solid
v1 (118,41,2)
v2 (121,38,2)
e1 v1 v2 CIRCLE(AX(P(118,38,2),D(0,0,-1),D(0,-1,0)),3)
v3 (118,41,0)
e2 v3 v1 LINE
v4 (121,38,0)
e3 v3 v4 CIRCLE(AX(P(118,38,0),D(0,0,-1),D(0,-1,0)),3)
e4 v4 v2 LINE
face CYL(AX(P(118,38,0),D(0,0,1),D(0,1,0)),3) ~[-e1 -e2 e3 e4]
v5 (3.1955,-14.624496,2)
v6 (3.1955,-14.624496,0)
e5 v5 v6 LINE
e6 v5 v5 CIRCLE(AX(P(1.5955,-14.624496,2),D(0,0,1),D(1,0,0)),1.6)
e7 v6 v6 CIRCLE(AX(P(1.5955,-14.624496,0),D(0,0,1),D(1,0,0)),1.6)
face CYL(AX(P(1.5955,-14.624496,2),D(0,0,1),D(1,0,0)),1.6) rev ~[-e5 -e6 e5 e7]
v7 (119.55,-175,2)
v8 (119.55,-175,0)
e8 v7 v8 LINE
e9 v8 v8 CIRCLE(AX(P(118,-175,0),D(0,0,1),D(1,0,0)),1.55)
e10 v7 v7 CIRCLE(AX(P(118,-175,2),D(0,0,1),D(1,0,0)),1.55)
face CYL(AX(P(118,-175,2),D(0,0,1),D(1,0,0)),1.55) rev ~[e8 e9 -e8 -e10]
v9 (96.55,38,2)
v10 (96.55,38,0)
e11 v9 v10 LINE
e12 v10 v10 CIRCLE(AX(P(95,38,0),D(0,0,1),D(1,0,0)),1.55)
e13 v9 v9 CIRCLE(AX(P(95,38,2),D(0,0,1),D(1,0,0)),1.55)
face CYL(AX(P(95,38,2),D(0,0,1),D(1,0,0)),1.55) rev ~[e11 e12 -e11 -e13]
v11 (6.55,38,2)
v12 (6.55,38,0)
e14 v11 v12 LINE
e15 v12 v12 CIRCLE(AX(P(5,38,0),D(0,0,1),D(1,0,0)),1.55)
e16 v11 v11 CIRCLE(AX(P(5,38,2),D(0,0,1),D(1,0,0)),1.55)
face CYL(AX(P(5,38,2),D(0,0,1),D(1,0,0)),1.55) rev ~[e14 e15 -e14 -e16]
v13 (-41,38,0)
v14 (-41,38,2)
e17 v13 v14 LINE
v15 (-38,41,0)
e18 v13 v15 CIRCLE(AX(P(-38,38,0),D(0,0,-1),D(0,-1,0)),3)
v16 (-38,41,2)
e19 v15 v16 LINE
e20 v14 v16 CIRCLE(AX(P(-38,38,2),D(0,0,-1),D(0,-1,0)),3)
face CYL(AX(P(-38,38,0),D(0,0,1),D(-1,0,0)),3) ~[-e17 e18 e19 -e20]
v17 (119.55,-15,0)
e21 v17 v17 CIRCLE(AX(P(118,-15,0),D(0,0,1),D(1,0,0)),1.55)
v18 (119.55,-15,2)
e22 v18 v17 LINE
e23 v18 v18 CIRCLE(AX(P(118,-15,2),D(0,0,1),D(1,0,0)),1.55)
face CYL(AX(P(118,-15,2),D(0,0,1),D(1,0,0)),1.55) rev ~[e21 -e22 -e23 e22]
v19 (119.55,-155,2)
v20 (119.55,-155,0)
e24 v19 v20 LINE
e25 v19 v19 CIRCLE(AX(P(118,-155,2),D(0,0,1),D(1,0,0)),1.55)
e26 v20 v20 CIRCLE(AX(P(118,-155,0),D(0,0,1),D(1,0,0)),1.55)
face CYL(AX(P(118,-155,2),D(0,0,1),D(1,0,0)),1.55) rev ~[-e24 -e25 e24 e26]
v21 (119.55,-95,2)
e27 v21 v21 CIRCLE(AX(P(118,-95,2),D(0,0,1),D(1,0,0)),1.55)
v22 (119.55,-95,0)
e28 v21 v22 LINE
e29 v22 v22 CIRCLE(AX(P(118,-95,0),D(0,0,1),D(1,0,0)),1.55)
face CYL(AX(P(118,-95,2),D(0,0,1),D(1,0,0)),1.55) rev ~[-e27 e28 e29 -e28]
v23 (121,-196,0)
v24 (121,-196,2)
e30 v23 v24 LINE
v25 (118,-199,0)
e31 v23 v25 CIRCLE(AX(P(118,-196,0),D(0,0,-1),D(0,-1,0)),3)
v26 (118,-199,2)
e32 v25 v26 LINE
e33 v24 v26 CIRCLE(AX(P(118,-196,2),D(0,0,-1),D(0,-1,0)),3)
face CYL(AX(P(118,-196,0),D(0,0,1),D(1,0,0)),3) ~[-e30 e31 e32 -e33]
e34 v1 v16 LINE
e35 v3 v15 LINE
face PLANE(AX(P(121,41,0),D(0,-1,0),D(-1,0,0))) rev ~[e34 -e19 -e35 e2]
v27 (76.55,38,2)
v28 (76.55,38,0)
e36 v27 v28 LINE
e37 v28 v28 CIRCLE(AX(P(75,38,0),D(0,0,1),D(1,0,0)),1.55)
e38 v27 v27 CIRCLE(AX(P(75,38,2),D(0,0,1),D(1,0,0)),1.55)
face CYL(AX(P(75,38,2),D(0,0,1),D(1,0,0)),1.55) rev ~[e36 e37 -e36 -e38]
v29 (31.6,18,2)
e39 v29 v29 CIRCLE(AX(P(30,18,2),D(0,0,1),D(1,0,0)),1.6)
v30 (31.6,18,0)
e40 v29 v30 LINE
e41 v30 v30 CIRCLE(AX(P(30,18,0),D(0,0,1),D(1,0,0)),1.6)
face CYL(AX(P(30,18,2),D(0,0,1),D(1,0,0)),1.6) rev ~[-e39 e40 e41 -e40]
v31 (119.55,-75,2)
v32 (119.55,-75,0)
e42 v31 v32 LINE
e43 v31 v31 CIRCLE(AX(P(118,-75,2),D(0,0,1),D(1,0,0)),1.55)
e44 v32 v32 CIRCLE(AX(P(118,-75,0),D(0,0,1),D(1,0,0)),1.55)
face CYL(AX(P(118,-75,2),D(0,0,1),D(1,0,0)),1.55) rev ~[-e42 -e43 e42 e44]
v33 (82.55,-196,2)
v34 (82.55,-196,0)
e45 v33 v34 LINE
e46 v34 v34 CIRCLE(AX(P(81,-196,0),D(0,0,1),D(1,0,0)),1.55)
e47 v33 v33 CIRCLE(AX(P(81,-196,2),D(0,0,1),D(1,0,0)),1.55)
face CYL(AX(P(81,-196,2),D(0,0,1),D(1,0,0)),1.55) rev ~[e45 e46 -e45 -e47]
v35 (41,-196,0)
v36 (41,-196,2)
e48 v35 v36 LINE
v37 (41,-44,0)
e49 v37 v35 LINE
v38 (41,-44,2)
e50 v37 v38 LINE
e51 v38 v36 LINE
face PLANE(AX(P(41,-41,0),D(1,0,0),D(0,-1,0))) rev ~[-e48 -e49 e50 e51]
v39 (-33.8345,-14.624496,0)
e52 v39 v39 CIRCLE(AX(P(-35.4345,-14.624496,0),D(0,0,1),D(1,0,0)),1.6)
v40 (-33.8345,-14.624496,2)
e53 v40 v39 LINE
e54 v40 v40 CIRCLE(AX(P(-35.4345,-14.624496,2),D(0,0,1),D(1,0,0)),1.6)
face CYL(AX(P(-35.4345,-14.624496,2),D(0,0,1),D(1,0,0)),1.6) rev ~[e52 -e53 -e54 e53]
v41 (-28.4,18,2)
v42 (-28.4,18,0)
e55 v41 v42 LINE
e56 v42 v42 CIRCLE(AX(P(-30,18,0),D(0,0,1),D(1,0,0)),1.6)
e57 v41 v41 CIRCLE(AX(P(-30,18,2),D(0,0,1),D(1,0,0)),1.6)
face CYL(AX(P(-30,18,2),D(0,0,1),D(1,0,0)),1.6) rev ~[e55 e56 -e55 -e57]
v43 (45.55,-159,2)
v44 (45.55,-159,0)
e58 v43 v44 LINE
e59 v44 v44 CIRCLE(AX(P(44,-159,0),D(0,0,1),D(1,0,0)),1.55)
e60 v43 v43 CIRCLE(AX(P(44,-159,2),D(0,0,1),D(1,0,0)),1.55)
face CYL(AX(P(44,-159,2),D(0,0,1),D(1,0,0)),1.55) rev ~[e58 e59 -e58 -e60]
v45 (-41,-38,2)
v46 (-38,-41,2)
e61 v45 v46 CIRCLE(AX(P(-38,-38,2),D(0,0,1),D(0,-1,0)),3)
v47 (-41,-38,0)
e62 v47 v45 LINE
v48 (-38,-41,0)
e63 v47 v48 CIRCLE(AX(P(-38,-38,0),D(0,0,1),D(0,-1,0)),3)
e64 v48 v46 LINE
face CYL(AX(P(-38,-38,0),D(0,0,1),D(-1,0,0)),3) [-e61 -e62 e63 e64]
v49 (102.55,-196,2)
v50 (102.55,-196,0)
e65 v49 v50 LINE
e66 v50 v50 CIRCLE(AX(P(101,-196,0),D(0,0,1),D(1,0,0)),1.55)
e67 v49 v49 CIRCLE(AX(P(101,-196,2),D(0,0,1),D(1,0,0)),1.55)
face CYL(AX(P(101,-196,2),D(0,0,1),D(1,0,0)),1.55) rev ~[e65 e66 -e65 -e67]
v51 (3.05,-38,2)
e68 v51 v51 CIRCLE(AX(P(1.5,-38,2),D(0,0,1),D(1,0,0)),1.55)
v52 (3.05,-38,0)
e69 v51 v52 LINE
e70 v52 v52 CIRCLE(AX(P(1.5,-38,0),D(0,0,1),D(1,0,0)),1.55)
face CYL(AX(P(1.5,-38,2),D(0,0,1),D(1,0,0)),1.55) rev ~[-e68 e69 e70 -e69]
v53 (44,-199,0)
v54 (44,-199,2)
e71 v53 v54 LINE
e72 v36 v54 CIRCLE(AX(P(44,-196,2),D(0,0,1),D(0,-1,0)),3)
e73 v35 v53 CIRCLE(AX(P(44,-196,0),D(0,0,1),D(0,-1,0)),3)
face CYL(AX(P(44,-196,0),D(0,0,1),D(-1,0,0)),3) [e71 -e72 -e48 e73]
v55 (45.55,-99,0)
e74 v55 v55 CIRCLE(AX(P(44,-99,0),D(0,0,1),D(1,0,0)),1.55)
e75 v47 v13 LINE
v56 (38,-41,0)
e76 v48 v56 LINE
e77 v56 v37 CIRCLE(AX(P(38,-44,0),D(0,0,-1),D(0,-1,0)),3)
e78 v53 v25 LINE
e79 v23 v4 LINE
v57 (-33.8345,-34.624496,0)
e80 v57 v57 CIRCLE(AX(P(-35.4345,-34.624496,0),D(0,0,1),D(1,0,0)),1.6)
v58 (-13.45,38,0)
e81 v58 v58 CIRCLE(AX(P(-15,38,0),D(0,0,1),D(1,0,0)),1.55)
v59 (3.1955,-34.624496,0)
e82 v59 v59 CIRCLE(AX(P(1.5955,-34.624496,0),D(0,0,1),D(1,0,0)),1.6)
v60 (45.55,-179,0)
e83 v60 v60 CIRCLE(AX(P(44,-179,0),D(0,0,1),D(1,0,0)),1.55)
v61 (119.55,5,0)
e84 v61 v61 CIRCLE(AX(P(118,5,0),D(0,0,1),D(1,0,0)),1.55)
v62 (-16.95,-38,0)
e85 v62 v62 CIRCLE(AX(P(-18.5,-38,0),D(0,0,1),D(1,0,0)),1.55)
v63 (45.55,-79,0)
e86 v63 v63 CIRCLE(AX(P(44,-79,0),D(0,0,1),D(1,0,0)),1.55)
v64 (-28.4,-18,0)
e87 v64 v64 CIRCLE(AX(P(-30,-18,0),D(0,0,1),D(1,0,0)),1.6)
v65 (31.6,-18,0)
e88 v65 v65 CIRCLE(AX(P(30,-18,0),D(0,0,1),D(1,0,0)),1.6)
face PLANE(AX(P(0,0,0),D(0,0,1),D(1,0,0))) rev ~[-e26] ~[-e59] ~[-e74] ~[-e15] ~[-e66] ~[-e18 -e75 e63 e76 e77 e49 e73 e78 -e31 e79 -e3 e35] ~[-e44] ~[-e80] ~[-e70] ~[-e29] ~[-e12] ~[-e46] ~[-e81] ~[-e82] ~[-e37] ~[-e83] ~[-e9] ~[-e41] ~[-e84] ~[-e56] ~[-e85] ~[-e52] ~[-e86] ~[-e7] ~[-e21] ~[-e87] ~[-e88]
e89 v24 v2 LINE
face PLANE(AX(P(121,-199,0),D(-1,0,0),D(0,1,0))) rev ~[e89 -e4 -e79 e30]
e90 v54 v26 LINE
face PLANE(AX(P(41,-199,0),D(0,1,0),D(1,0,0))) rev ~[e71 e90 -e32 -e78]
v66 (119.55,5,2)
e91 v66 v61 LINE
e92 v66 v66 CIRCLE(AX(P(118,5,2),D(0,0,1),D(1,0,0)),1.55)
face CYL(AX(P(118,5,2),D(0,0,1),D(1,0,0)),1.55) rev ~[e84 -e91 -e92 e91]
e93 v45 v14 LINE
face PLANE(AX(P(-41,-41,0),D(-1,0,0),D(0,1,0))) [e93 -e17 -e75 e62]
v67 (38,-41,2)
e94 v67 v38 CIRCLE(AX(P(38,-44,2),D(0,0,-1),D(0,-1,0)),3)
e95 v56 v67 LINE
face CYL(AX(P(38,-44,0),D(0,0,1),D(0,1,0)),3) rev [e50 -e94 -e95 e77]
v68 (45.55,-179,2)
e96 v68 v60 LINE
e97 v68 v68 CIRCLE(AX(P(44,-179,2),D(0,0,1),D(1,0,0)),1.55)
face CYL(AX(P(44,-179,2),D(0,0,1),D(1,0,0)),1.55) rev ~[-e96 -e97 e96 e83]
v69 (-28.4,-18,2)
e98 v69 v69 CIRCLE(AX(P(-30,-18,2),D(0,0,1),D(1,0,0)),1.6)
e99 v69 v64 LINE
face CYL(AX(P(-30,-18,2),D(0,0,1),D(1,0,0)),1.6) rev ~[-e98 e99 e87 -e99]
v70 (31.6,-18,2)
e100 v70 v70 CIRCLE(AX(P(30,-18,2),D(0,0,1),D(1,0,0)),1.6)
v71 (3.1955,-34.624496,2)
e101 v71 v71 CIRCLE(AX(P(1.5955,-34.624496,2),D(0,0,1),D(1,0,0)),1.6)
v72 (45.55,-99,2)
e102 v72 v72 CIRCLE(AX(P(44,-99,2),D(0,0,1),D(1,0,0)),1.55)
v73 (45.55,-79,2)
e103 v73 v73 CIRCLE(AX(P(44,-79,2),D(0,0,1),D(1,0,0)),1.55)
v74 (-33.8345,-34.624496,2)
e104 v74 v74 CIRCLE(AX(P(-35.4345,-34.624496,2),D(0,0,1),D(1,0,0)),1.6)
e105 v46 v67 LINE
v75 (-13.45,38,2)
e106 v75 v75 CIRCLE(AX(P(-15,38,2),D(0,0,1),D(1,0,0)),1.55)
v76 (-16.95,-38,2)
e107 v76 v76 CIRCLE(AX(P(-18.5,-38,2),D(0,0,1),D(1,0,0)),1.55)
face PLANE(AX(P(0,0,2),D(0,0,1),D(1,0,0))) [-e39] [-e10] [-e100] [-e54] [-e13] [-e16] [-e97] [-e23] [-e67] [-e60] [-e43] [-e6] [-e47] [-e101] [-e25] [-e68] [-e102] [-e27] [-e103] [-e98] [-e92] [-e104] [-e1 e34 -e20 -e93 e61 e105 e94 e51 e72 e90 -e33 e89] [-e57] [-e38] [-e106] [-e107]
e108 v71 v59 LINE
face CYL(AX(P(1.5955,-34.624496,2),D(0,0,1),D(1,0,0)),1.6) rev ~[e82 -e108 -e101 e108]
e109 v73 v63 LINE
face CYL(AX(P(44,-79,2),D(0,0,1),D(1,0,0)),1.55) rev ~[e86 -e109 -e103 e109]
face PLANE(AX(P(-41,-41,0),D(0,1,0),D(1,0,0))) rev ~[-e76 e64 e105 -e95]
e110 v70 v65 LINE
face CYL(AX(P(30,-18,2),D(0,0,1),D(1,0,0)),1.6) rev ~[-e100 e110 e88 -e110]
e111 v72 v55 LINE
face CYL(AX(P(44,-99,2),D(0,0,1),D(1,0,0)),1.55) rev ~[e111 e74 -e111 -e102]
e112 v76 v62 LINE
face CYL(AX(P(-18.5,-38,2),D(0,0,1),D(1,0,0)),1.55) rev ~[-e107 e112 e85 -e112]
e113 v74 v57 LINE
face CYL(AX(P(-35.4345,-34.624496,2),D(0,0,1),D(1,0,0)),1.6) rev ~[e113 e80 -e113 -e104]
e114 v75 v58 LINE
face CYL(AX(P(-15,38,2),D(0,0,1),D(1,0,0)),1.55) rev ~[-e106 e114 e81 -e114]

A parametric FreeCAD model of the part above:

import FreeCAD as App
import Part
import Sketcher
Q = App.Units.Quantity


def edges_at(feature, points):
    """Names of the edges that pass closest to the given points."""
    edges = feature.Shape.Edges
    near = lambda p: min(range(len(edges)), key=lambda i: edges[i].distToShape(Part.Vertex(*p))[0])
    return sorted({f"Edge{near(p) + 1}" for p in points})

doc = App.newDocument("Part")
params = doc.addObject("Spreadsheet::Sheet", "Params")
for row, (alias, value) in enumerate([
    ("sketch1_width", "82 mm"),
    ("sketch1_width2", "80 mm"),
    ("sketch1_height", "158 mm"),
    ("pad1_length", "2 mm"),
    ("sketch2_diameter", "3.1 mm"),
    ("sketch2_diameter2", "3.2 mm"),
    ("fillet_radius", "3 mm"),
    ("sketch3_diameter", "3.2 mm"),
], start=1):
    params.set(f"A{row}", alias)
    params.set(f"B{row}", "=" + value)
    params.setAlias(f"B{row}", alias)

body = doc.addObject("PartDesign::Body", "Body")

# Sketch on XY plane
sketch1 = doc.addObject("Sketcher::SketchObject", "Sketch")
body.addObject(sketch1)
sketch1.AttachmentSupport = (doc.XY_Plane, [""])
sketch1.MapMode = "FlatFace"
sketch1.addGeometry(Part.LineSegment(App.Vector(-41, 41, 0), App.Vector(-41, -41, 0)), False)
sketch1.addGeometry(Part.LineSegment(App.Vector(-41, -41, 0), App.Vector(41, -41, 0)), False)
sketch1.addGeometry(Part.LineSegment(App.Vector(41, -41, 0), App.Vector(41, -199, 0)), False)
sketch1.addGeometry(Part.LineSegment(App.Vector(41, -199, 0), App.Vector(121, -199, 0)), False)
sketch1.addGeometry(Part.LineSegment(App.Vector(121, -199, 0), App.Vector(121, 41, 0)), False)
sketch1.addGeometry(Part.LineSegment(App.Vector(121, 41, 0), App.Vector(-41, 41, 0)), False)
sketch1.addConstraint(Sketcher.Constraint("Coincident", 0, 2, 1, 1))
sketch1.addConstraint(Sketcher.Constraint("Coincident", 1, 2, 2, 1))
sketch1.addConstraint(Sketcher.Constraint("Coincident", 2, 2, 3, 1))
sketch1.addConstraint(Sketcher.Constraint("Coincident", 3, 2, 4, 1))
sketch1.addConstraint(Sketcher.Constraint("Coincident", 4, 2, 5, 1))
sketch1.addConstraint(Sketcher.Constraint("Coincident", 5, 2, 0, 1))
sketch1.addConstraint(Sketcher.Constraint("Vertical", 0))
sketch1.addConstraint(Sketcher.Constraint("Horizontal", 1))
sketch1.addConstraint(Sketcher.Constraint("Vertical", 2))
sketch1.addConstraint(Sketcher.Constraint("Horizontal", 3))
sketch1.addConstraint(Sketcher.Constraint("Vertical", 4))
sketch1.addConstraint(Sketcher.Constraint("Horizontal", 5))
sketch1.addConstraint(Sketcher.Constraint("Symmetric", 1, 2, 5, 2, -1, 1))
sketch1.addConstraint(Sketcher.Constraint("Equal", 1, 0))
sketch1.addConstraint(Sketcher.Constraint("DistanceX", 1, 1, 1, 2, Q("82 mm")))
sketch1.addConstraint(Sketcher.Constraint("DistanceX", 3, 1, 3, 2, Q("80 mm")))
sketch1.addConstraint(Sketcher.Constraint("DistanceY", 2, 2, 2, 1, Q("158 mm")))
sketch1.setExpression("Constraints[14]", "Params.sketch1_width")
sketch1.setExpression("Constraints[15]", "Params.sketch1_width2")
sketch1.setExpression("Constraints[16]", "Params.sketch1_height")
pad1 = doc.addObject("PartDesign::Pad", "Pad")
body.addObject(pad1)
pad1.Profile = sketch1
pad1.setExpression("Length", "Params.pad1_length")

# Sketch on XY plane
sketch2 = doc.addObject("Sketcher::SketchObject", "Sketch001")
body.addObject(sketch2)
sketch2.AttachmentSupport = (doc.XY_Plane, [""])
sketch2.MapMode = "FlatFace"
sketch2.AttachmentOffset = App.Placement(App.Vector(0, 0, 2), App.Rotation())
sketch2.addGeometry(Part.Circle(App.Vector(-15, 38, 0), App.Vector(0, 0, 1), 1.6), False)
sketch2.addGeometry(Part.Circle(App.Vector(5, 38, 0), App.Vector(0, 0, 1), 1.6), False)
sketch2.addGeometry(Part.Circle(App.Vector(-18.5, -38, 0), App.Vector(0, 0, 1), 1.6), False)
sketch2.addGeometry(Part.Circle(App.Vector(1.5, -38, 0), App.Vector(0, 0, 1), 1.6), False)
sketch2.addGeometry(Part.Circle(App.Vector(-30, 18, 0), App.Vector(0, 0, 1), 1.6), False)
sketch2.addGeometry(Part.Circle(App.Vector(30, 18, 0), App.Vector(0, 0, 1), 1.6), False)
sketch2.addGeometry(Part.Circle(App.Vector(30, -18, 0), App.Vector(0, 0, 1), 1.6), False)
sketch2.addGeometry(Part.Circle(App.Vector(-30, -18, 0), App.Vector(0, 0, 1), 1.6), False)
sketch2.addGeometry(Part.Circle(App.Vector(44, -179, 0), App.Vector(0, 0, 1), 1.6), False)
sketch2.addGeometry(Part.Circle(App.Vector(44, -159, 0), App.Vector(0, 0, 1), 1.6), False)
sketch2.addGeometry(Part.Circle(App.Vector(101, -196, 0), App.Vector(0, 0, 1), 1.6), False)
sketch2.addGeometry(Part.Circle(App.Vector(81, -196, 0), App.Vector(0, 0, 1), 1.6), False)
sketch2.addGeometry(Part.Circle(App.Vector(44, -99, 0), App.Vector(0, 0, 1), 1.6), False)
sketch2.addGeometry(Part.Circle(App.Vector(44, -79, 0), App.Vector(0, 0, 1), 1.6), False)
sketch2.addGeometry(Part.Circle(App.Vector(118, 5, 0), App.Vector(0, 0, 1), 1.6), False)
sketch2.addGeometry(Part.Circle(App.Vector(118, -15, 0), App.Vector(0, 0, 1), 1.6), False)
sketch2.addGeometry(Part.Circle(App.Vector(118, -75, 0), App.Vector(0, 0, 1), 1.6), False)
sketch2.addGeometry(Part.Circle(App.Vector(118, -95, 0), App.Vector(0, 0, 1), 1.6), False)
sketch2.addGeometry(Part.Circle(App.Vector(118, -175, 0), App.Vector(0, 0, 1), 1.6), False)
sketch2.addGeometry(Part.Circle(App.Vector(118, -155, 0), App.Vector(0, 0, 1), 1.6), False)
sketch2.addGeometry(Part.Circle(App.Vector(95, 38, 0), App.Vector(0, 0, 1), 1.6), False)
sketch2.addGeometry(Part.Circle(App.Vector(75, 38, 0), App.Vector(0, 0, 1), 1.6), False)
sketch2.addConstraint(Sketcher.Constraint("Equal", 0, 1))
sketch2.addConstraint(Sketcher.Constraint("Equal", 1, 2))
sketch2.addConstraint(Sketcher.Constraint("Equal", 2, 3))
sketch2.addConstraint(Sketcher.Constraint("Equal", 4, 5))
sketch2.addConstraint(Sketcher.Constraint("Equal", 5, 6))
sketch2.addConstraint(Sketcher.Constraint("Equal", 6, 7))
sketch2.addConstraint(Sketcher.Constraint("Equal", 3, 8))
sketch2.addConstraint(Sketcher.Constraint("Equal", 8, 9))
sketch2.addConstraint(Sketcher.Constraint("Equal", 9, 10))
sketch2.addConstraint(Sketcher.Constraint("Equal", 10, 11))
sketch2.addConstraint(Sketcher.Constraint("Equal", 11, 12))
sketch2.addConstraint(Sketcher.Constraint("Equal", 12, 13))
sketch2.addConstraint(Sketcher.Constraint("Equal", 13, 14))
sketch2.addConstraint(Sketcher.Constraint("Equal", 14, 15))
sketch2.addConstraint(Sketcher.Constraint("Equal", 15, 16))
sketch2.addConstraint(Sketcher.Constraint("Equal", 16, 17))
sketch2.addConstraint(Sketcher.Constraint("Equal", 17, 18))
sketch2.addConstraint(Sketcher.Constraint("Equal", 18, 19))
sketch2.addConstraint(Sketcher.Constraint("Equal", 19, 20))
sketch2.addConstraint(Sketcher.Constraint("Equal", 20, 21))
sketch2.addConstraint(Sketcher.Constraint("Symmetric", 4, 3, 6, 3, -1, 1))
sketch2.addConstraint(Sketcher.Constraint("Symmetric", 5, 3, 7, 3, -1, 1))
sketch2.addConstraint(Sketcher.Constraint("Symmetric", 4, 3, 5, 3, -2))
sketch2.addConstraint(Sketcher.Constraint("Horizontal", 0, 3, 1, 3))
sketch2.addConstraint(Sketcher.Constraint("Horizontal", 2, 3, 3, 3))
sketch2.addConstraint(Sketcher.Constraint("Horizontal", 10, 3, 11, 3))
sketch2.addConstraint(Sketcher.Constraint("Horizontal", 1, 3, 20, 3))
sketch2.addConstraint(Sketcher.Constraint("Horizontal", 20, 3, 21, 3))
sketch2.addConstraint(Sketcher.Constraint("Vertical", 8, 3, 9, 3))
sketch2.addConstraint(Sketcher.Constraint("Vertical", 9, 3, 12, 3))
sketch2.addConstraint(Sketcher.Constraint("Vertical", 12, 3, 13, 3))
sketch2.addConstraint(Sketcher.Constraint("Vertical", 14, 3, 15, 3))
sketch2.addConstraint(Sketcher.Constraint("Vertical", 15, 3, 16, 3))
sketch2.addConstraint(Sketcher.Constraint("Vertical", 16, 3, 17, 3))
sketch2.addConstraint(Sketcher.Constraint("Vertical", 17, 3, 18, 3))
sketch2.addConstraint(Sketcher.Constraint("Vertical", 18, 3, 19, 3))
sketch2.addConstraint(Sketcher.Constraint("Diameter", 0, Q("3.1 mm")))
sketch2.addConstraint(Sketcher.Constraint("Diameter", 4, Q("3.2 mm")))
sketch2.addConstraint(Sketcher.Constraint("DistanceX", 0, 3, -1, 1, Q("15 mm")))
sketch2.addConstraint(Sketcher.Constraint("DistanceY", -1, 1, 0, 3, Q("38 mm")))
sketch2.addConstraint(Sketcher.Constraint("DistanceX", -1, 1, 1, 3, Q("5 mm")))
sketch2.addConstraint(Sketcher.Constraint("DistanceY", 2, 3, -1, 1, Q("38 mm")))
sketch2.addConstraint(Sketcher.Constraint("DistanceX", 4, 3, -1, 1, Q("30 mm")))
sketch2.addConstraint(Sketcher.Constraint("DistanceY", -1, 1, 4, 3, Q("18 mm")))
sketch2.addConstraint(Sketcher.Constraint("DistanceX", -1, 1, 8, 3, Q("44 mm")))
sketch2.addConstraint(Sketcher.Constraint("DistanceY", 8, 3, -1, 1, Q("179 mm")))
sketch2.addConstraint(Sketcher.Constraint("DistanceY", 9, 3, -1, 1, Q("159 mm")))
sketch2.addConstraint(Sketcher.Constraint("DistanceX", -1, 1, 10, 3, Q("101 mm")))
sketch2.addConstraint(Sketcher.Constraint("DistanceY", 10, 3, -1, 1, Q("196 mm")))
sketch2.addConstraint(Sketcher.Constraint("DistanceX", -1, 1, 11, 3, Q("81 mm")))
sketch2.addConstraint(Sketcher.Constraint("DistanceY", 12, 3, -1, 1, Q("99 mm")))
sketch2.addConstraint(Sketcher.Constraint("DistanceY", 13, 3, -1, 1, Q("79 mm")))
sketch2.addConstraint(Sketcher.Constraint("DistanceX", -1, 1, 14, 3, Q("118 mm")))
sketch2.addConstraint(Sketcher.Constraint("DistanceY", -1, 1, 14, 3, Q("5 mm")))
sketch2.addConstraint(Sketcher.Constraint("DistanceY", 15, 3, -1, 1, Q("15 mm")))
sketch2.addConstraint(Sketcher.Constraint("DistanceY", 16, 3, -1, 1, Q("75 mm")))
sketch2.addConstraint(Sketcher.Constraint("DistanceY", 17, 3, -1, 1, Q("95 mm")))
sketch2.addConstraint(Sketcher.Constraint("DistanceY", 18, 3, -1, 1, Q("175 mm")))
sketch2.addConstraint(Sketcher.Constraint("DistanceY", 19, 3, -1, 1, Q("155 mm")))
sketch2.addConstraint(Sketcher.Constraint("DistanceX", -1, 1, 20, 3, Q("95 mm")))
sketch2.addConstraint(Sketcher.Constraint("DistanceX", -1, 1, 21, 3, Q("75 mm")))
sketch2.addConstraint(Sketcher.Constraint("DistanceX", 2, 3, 3, 3, Q("20 mm")))
sketch2.addConstraint(Sketcher.Constraint("DistanceX", 2, 3, -1, 1, Q("18.5 mm")))
sketch2.setExpression("Constraints[36]", "Params.sketch2_diameter")
sketch2.setExpression("Constraints[37]", "Params.sketch2_diameter2")
pocket1 = doc.addObject("PartDesign::Pocket", "Pocket")
body.addObject(pocket1)
pocket1.Profile = sketch2
pocket1.Type = "ThroughAll"
doc.recompute()

fillet = doc.addObject("PartDesign::Fillet", "Fillet")
body.addObject(fillet)
fillet.Base = (pocket1, edges_at(pocket1, [
    (-41, -41, 1),
    (-41, 41, 1),
    (121, 41, 1),
    (121, -199, 1),
    (41, -199, 1),
    (41, -41, 1),
]))
fillet.setExpression("Radius", "Params.fillet_radius")

# Sketch on XY plane
sketch3 = doc.addObject("Sketcher::SketchObject", "Sketch002")
body.addObject(sketch3)
sketch3.AttachmentSupport = (doc.XY_Plane, [""])
sketch3.MapMode = "FlatFace"
sketch3.AttachmentOffset = App.Placement(App.Vector(0, 0, 2), App.Rotation())
sketch3.addGeometry(Part.Circle(App.Vector(-35.4, -34.6, 0), App.Vector(0, 0, 1), 1.6), False)
sketch3.addGeometry(Part.Circle(App.Vector(1.6, -34.6, 0), App.Vector(0, 0, 1), 1.6), False)
sketch3.addGeometry(Part.Circle(App.Vector(1.6, -14.6, 0), App.Vector(0, 0, 1), 1.6), False)
sketch3.addGeometry(Part.Circle(App.Vector(-35.4, -14.6, 0), App.Vector(0, 0, 1), 1.6), False)
sketch3.addConstraint(Sketcher.Constraint("Equal", 0, 1))
sketch3.addConstraint(Sketcher.Constraint("Equal", 1, 2))
sketch3.addConstraint(Sketcher.Constraint("Equal", 2, 3))
sketch3.addConstraint(Sketcher.Constraint("Horizontal", 0, 3, 1, 3))
sketch3.addConstraint(Sketcher.Constraint("Horizontal", 2, 3, 3, 3))
sketch3.addConstraint(Sketcher.Constraint("Vertical", 1, 3, 2, 3))
sketch3.addConstraint(Sketcher.Constraint("Vertical", 0, 3, 3, 3))
sketch3.addConstraint(Sketcher.Constraint("Diameter", 0, Q("3.2 mm")))
sketch3.addConstraint(Sketcher.Constraint("DistanceY", 1, 3, 2, 3, Q("20 mm")))
sketch3.addConstraint(Sketcher.Constraint("DistanceX", 0, 3, 1, 3, Q("37.03 mm")))
sketch3.addConstraint(Sketcher.Constraint("DistanceX", 0, 3, -1, 1, Q("35.4345 mm")))
sketch3.addConstraint(Sketcher.Constraint("DistanceY", 0, 3, -1, 1, Q("34.624496 mm")))
sketch3.setExpression("Constraints[7]", "Params.sketch3_diameter")
pocket2 = doc.addObject("PartDesign::Pocket", "Pocket001")
body.addObject(pocket2)
pocket2.Profile = sketch3
pocket2.Type = "ThroughAll"

doc.recompute()
